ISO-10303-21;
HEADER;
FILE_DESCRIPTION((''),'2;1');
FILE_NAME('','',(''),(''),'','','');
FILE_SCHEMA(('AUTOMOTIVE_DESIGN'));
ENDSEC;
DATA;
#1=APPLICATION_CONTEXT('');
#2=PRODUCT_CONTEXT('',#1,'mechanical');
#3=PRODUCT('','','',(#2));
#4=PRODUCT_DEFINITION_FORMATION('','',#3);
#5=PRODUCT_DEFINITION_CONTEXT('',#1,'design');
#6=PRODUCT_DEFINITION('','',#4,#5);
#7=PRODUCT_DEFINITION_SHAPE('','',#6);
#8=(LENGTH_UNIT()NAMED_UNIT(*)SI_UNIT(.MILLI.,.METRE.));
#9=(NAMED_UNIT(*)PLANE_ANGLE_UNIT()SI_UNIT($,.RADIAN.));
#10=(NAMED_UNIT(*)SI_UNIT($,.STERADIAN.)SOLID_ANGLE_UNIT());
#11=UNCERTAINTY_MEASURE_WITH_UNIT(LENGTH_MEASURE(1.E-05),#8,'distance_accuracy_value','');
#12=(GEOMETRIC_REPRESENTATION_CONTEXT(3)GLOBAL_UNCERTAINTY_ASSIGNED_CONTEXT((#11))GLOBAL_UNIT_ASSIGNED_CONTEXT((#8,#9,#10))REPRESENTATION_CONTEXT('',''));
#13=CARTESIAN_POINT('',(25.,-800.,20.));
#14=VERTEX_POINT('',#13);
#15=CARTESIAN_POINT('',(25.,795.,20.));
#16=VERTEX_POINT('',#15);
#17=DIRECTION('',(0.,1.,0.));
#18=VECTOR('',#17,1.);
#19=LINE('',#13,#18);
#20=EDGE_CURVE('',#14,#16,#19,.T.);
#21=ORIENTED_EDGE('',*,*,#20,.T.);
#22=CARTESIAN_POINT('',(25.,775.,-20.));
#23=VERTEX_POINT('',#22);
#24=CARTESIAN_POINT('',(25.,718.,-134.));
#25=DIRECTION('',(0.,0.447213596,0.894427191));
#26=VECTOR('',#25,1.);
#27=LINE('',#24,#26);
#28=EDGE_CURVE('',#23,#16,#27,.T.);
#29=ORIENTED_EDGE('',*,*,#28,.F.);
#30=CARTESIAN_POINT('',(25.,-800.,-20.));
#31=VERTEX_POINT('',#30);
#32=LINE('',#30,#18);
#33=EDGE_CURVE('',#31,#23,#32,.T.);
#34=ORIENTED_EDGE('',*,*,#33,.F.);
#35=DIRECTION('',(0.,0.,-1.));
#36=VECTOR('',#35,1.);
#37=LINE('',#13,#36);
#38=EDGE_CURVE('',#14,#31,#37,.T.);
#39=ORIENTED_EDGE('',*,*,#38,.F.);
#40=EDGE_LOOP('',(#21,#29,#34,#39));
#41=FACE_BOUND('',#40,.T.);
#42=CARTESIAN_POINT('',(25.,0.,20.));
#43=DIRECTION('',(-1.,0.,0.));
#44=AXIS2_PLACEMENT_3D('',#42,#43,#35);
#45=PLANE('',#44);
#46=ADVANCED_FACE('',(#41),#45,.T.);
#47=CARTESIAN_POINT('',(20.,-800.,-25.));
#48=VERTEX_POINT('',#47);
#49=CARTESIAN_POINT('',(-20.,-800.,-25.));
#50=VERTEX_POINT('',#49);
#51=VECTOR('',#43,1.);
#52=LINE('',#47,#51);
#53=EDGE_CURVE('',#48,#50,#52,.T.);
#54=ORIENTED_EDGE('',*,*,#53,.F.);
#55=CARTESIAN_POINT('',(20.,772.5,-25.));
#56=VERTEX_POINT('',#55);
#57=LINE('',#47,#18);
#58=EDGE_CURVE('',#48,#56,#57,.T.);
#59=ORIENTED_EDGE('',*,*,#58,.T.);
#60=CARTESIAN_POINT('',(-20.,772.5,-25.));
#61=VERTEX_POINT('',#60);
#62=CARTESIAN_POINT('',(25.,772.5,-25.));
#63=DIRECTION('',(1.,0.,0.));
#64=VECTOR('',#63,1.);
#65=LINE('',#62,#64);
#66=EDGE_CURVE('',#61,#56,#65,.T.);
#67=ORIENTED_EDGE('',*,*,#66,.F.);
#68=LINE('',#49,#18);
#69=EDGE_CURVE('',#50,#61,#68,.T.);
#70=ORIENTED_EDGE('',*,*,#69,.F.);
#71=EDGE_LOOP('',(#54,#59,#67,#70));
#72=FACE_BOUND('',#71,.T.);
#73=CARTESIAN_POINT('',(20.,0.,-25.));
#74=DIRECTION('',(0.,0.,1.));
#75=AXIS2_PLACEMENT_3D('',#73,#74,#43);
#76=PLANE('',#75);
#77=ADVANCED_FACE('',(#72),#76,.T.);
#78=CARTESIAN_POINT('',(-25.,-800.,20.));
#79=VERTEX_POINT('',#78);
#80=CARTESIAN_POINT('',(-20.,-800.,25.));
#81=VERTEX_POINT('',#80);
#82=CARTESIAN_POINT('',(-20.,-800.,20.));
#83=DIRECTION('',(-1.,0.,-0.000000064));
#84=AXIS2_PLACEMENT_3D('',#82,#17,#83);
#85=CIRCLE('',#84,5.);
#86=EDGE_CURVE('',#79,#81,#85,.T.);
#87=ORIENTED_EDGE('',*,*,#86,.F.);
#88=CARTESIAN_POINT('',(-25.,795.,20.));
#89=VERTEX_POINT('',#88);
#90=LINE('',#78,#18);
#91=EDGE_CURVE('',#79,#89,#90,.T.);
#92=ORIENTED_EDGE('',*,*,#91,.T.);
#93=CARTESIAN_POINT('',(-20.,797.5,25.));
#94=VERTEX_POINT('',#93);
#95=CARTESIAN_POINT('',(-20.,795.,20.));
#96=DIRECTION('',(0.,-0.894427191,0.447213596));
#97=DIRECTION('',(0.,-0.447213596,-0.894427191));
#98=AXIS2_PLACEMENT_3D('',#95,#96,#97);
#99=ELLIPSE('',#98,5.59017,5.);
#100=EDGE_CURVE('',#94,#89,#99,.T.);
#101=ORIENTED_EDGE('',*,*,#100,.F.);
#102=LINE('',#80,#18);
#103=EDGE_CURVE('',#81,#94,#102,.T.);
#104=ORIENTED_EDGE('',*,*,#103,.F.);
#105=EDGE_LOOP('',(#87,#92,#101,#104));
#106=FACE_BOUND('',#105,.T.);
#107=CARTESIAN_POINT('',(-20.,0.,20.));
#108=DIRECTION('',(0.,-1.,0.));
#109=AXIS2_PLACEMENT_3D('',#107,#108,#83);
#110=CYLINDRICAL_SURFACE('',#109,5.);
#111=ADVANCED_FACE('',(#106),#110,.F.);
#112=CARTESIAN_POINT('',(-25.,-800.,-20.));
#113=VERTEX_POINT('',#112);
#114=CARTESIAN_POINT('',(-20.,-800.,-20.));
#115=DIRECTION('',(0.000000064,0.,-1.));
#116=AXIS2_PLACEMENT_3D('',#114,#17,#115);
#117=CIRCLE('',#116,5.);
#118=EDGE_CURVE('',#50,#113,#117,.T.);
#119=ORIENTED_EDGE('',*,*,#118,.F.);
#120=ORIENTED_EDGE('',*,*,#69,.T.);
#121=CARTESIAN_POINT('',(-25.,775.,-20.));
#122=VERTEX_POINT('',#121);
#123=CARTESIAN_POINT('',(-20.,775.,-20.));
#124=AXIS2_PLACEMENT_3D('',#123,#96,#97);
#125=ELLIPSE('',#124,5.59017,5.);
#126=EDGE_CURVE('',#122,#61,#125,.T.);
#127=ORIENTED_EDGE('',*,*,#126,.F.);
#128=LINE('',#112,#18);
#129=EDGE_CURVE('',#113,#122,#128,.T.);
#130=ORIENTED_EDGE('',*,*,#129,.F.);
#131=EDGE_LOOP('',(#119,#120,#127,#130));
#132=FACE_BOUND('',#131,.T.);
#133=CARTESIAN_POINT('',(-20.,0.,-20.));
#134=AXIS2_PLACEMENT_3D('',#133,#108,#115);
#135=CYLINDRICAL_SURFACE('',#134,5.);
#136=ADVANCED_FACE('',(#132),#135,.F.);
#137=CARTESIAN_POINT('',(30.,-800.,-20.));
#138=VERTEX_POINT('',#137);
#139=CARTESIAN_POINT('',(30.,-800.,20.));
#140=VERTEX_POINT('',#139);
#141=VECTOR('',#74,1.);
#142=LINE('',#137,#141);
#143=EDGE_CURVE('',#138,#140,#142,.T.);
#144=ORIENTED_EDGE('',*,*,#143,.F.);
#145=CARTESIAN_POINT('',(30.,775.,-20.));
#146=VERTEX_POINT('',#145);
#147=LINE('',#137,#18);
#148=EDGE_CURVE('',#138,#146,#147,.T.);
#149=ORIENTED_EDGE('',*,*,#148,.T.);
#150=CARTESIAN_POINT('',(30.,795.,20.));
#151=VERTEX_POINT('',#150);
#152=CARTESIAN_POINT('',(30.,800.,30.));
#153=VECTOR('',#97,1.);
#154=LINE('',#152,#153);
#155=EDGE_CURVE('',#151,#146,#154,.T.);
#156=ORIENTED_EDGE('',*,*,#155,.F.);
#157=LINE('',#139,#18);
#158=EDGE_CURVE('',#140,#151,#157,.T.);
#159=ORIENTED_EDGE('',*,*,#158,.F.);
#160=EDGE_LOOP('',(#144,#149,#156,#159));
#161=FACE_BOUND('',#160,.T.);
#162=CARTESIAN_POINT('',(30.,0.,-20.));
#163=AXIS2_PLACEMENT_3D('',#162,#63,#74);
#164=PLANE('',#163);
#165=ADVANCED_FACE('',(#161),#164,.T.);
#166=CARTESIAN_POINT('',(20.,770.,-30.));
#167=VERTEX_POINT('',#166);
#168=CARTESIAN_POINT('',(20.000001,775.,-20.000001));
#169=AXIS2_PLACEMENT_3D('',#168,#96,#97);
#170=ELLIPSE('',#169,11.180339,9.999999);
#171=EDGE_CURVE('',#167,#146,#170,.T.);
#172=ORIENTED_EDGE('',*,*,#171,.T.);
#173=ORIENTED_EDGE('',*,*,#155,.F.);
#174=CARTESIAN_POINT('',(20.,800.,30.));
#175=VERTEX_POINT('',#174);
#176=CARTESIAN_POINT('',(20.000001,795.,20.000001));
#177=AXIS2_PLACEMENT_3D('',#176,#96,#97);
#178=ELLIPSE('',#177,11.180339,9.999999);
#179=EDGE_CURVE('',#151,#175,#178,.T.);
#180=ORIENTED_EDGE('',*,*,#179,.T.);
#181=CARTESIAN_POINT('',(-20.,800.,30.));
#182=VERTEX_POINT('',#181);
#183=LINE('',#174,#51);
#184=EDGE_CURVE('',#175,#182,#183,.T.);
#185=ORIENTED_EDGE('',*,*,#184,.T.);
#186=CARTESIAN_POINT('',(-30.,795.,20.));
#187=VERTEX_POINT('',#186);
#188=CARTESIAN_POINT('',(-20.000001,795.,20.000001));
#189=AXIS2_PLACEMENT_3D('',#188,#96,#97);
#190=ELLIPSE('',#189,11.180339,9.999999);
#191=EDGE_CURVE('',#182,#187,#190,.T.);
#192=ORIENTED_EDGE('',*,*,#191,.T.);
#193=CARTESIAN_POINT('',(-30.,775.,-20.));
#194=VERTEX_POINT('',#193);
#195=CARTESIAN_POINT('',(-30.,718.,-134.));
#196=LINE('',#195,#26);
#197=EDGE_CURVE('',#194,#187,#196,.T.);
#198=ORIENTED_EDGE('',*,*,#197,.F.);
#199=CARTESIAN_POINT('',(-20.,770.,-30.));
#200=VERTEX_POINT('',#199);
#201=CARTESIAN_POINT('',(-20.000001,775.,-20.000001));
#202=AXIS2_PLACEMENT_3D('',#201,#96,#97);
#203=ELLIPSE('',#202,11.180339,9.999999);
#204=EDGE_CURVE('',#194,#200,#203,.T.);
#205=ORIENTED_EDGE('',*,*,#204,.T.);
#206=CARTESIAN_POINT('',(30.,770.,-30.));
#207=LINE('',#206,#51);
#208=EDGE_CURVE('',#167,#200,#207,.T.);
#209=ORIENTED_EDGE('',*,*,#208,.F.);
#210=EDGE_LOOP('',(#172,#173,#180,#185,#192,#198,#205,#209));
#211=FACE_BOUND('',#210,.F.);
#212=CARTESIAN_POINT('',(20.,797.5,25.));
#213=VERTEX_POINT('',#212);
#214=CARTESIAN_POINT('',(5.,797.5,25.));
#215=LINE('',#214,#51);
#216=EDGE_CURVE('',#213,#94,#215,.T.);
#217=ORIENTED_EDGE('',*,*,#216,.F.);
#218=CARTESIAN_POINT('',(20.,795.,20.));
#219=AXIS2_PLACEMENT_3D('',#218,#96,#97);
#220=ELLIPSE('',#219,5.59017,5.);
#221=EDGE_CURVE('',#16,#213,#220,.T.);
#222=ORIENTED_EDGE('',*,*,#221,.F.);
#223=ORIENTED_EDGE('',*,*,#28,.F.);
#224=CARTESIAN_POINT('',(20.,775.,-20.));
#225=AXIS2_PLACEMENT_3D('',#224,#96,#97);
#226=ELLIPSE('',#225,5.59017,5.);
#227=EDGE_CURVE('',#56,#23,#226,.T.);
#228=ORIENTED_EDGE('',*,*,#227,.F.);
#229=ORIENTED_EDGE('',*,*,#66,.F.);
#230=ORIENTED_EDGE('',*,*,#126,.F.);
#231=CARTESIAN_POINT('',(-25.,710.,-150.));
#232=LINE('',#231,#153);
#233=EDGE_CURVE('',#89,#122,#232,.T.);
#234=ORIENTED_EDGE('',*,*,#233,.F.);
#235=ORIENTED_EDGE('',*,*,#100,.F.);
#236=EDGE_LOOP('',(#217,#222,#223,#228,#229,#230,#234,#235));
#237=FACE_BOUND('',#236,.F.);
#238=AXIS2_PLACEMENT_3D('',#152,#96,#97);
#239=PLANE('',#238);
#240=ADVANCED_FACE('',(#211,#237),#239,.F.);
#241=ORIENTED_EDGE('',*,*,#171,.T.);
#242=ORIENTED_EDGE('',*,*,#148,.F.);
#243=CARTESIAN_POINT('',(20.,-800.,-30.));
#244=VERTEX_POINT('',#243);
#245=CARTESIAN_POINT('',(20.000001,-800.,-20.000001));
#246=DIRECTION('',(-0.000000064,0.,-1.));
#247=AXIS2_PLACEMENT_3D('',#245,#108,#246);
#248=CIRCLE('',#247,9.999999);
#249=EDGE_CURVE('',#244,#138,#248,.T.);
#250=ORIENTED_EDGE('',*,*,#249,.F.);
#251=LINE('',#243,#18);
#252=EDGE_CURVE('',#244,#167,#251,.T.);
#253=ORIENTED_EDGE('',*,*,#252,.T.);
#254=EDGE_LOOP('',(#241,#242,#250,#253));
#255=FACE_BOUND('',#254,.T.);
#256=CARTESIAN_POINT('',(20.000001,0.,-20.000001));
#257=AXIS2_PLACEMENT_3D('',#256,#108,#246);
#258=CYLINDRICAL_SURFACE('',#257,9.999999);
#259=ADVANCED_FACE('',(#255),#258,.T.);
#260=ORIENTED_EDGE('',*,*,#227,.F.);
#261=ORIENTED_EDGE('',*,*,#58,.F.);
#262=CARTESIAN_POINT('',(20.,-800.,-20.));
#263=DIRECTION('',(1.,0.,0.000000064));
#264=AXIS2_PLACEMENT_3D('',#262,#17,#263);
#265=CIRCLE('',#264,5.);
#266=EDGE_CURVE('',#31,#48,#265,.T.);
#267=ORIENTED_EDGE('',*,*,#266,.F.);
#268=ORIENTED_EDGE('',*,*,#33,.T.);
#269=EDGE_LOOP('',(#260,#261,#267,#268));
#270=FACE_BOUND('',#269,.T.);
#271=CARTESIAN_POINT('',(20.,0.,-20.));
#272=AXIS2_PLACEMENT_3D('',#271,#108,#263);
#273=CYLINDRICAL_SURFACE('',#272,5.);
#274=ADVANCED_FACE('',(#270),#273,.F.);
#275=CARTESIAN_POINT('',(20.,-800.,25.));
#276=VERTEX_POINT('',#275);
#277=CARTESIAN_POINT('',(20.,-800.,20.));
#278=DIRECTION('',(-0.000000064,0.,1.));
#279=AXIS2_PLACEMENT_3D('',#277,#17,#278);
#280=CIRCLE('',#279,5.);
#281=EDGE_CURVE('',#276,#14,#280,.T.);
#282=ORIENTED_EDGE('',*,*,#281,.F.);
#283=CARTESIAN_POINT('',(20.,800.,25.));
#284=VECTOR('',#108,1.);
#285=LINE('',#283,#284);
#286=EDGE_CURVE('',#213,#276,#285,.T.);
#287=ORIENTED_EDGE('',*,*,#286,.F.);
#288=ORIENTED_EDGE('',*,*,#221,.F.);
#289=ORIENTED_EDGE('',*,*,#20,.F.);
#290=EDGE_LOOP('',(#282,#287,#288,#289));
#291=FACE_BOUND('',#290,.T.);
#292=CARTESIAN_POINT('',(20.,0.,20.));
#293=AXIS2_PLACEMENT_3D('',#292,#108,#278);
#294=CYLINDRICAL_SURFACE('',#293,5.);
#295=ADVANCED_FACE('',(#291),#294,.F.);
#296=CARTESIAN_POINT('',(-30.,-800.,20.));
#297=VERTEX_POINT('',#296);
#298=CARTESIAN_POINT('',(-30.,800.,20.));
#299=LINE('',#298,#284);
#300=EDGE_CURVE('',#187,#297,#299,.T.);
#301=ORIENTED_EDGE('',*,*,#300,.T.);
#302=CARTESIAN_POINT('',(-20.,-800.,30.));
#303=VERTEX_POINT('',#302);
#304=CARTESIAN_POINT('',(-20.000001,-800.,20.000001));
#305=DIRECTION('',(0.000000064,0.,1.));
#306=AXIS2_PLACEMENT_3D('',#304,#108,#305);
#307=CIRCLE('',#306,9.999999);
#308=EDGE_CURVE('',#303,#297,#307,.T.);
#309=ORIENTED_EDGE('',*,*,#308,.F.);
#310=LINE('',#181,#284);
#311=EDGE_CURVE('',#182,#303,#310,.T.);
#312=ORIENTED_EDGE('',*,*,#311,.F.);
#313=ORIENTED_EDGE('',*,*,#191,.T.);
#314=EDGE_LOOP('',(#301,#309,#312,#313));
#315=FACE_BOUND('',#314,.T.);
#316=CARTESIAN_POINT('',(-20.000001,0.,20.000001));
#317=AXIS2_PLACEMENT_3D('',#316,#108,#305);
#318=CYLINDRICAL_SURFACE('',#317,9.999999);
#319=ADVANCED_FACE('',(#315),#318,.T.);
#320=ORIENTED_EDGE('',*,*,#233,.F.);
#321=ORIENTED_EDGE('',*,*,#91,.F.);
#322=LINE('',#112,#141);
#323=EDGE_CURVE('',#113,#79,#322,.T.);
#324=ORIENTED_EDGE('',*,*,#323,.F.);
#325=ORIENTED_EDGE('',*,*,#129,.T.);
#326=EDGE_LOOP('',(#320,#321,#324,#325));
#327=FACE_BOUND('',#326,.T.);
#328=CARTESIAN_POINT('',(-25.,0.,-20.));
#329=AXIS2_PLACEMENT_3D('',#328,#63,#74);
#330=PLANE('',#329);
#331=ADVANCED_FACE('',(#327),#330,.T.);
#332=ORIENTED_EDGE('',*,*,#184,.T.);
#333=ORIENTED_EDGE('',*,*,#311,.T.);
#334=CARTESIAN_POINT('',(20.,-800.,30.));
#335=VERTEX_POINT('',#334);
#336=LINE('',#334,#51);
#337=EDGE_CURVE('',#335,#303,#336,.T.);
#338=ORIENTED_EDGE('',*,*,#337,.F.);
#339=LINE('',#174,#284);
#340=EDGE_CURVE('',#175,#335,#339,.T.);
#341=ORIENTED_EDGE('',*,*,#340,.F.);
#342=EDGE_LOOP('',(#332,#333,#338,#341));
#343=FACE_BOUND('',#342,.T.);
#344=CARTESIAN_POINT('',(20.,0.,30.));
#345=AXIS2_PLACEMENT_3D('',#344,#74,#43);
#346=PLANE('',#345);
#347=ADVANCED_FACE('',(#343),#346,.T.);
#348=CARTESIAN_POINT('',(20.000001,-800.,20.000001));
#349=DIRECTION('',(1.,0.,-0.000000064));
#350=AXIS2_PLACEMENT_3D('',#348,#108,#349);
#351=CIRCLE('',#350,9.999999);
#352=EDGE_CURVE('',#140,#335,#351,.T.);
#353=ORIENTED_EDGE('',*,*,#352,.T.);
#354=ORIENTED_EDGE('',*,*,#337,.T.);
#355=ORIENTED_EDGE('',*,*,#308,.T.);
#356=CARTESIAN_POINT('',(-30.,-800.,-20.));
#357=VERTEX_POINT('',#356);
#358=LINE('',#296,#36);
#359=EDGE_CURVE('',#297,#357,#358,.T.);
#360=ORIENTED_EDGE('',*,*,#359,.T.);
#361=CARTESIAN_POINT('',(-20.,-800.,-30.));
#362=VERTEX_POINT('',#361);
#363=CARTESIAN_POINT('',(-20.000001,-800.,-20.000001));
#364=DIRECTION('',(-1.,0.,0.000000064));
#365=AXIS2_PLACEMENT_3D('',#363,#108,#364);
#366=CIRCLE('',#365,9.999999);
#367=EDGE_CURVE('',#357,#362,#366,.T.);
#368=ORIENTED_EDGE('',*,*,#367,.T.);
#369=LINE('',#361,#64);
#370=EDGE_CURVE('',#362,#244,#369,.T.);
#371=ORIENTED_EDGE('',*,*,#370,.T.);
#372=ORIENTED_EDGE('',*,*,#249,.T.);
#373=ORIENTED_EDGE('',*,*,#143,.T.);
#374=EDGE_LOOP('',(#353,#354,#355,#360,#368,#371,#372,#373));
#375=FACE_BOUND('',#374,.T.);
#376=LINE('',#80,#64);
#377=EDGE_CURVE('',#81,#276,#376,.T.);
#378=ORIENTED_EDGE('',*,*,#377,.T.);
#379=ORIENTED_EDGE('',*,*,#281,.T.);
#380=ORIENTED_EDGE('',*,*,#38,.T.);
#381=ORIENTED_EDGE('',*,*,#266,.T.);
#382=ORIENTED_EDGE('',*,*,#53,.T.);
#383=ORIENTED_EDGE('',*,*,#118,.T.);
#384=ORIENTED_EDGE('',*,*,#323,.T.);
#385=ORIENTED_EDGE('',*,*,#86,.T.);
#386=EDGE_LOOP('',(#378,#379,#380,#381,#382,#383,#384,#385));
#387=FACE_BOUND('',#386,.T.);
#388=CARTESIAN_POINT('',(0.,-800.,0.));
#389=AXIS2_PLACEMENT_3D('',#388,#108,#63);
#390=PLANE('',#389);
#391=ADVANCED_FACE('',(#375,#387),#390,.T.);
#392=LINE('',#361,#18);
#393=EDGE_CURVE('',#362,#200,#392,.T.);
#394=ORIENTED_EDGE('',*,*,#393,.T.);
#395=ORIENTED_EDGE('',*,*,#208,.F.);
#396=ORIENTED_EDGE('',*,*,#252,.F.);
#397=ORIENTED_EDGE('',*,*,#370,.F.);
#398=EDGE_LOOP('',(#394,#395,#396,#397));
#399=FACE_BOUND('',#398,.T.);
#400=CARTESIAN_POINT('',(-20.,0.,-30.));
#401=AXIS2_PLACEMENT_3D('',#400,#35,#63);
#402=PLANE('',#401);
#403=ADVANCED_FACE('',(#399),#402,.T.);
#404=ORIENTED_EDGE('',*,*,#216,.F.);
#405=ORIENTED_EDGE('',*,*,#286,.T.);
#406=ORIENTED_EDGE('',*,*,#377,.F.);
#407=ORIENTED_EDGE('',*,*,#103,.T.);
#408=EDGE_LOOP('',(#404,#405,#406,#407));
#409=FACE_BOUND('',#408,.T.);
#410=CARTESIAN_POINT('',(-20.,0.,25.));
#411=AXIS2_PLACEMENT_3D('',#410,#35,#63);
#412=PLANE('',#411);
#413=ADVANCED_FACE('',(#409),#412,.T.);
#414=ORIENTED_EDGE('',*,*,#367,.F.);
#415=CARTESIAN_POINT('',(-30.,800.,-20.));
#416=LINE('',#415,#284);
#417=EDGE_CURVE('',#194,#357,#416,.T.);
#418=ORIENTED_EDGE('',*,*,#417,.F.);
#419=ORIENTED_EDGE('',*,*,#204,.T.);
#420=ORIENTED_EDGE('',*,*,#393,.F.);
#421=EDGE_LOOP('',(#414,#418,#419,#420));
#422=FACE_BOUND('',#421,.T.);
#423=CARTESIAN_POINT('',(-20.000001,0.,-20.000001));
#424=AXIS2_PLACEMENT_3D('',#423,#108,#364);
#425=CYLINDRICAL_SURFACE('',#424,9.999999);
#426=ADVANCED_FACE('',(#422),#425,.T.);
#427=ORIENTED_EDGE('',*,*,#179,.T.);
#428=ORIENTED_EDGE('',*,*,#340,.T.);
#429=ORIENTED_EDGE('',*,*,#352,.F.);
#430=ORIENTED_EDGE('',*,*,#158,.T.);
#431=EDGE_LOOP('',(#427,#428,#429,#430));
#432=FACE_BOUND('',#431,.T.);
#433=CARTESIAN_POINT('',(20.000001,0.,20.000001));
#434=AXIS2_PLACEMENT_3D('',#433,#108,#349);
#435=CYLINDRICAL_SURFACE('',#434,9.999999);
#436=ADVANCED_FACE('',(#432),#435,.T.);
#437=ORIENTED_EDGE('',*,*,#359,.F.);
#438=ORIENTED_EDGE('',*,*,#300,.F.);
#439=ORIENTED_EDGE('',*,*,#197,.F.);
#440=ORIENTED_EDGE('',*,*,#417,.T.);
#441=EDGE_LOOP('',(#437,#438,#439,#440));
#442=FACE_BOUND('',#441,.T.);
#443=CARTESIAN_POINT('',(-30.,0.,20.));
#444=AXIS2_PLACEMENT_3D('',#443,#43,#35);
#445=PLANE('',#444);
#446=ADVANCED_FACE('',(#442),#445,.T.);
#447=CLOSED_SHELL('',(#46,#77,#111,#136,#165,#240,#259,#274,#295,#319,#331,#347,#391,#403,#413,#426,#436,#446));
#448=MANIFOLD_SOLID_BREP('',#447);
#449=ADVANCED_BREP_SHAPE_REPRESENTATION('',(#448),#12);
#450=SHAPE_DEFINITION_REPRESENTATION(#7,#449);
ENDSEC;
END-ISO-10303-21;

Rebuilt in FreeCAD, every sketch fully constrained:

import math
import FreeCAD as App
import Part
import Sketcher

V = App.Vector
Q = App.Units.Quantity

doc = App.newDocument("Part")
body = doc.addObject("PartDesign::Body", "Body")

# Sketch on XZ plane
sketch1 = body.newObject("Sketcher::SketchObject", "Sketch")
sketch1.AttachmentSupport = (doc.getObject("XZ_Plane"), [""])
sketch1.MapMode = "FlatFace"
sketch1.addGeometry([
    Part.ArcOfCircle(Part.Circle(V(20, 20, 0), V(0, 0, 1), 10), math.radians(0), math.radians(90)),  # 0
    Part.LineSegment(V(20, 30, 0), V(-20, 30, 0)),  # 1
    Part.ArcOfCircle(Part.Circle(V(-20, 20, 0), V(0, 0, 1), 10), math.radians(90), math.radians(180)),  # 2
    Part.LineSegment(V(-30, 20, 0), V(-30, -20, 0)),  # 3
    Part.ArcOfCircle(Part.Circle(V(-20, -20, 0), V(0, 0, 1), 10), math.radians(180), math.radians(270)),  # 4
    Part.LineSegment(V(-20, -30, 0), V(20, -30, 0)),  # 5
    Part.ArcOfCircle(Part.Circle(V(20, -20, 0), V(0, 0, 1), 10), math.radians(-90), math.radians(0)),  # 6
    Part.LineSegment(V(30, -20, 0), V(30, 20, 0)),  # 7
    Part.LineSegment(V(-20, 25, 0), V(20, 25, 0)),  # 8
    Part.ArcOfCircle(Part.Circle(V(20, 20, 0), V(0, 0, 1), 5), math.radians(0), math.radians(90)),  # 9
    Part.LineSegment(V(25, 20, 0), V(25, -20, 0)),  # 10
    Part.ArcOfCircle(Part.Circle(V(20, -20, 0), V(0, 0, 1), 5), math.radians(-90), math.radians(0)),  # 11
    Part.LineSegment(V(20, -25, 0), V(-20, -25, 0)),  # 12
    Part.ArcOfCircle(Part.Circle(V(-20, -20, 0), V(0, 0, 1), 5), math.radians(180), math.radians(270)),  # 13
    Part.LineSegment(V(-25, -20, 0), V(-25, 20, 0)),  # 14
    Part.ArcOfCircle(Part.Circle(V(-20, 20, 0), V(0, 0, 1), 5), math.radians(90), math.radians(180)),  # 15
], False)
sketch1.addConstraint([
    Sketcher.Constraint("Tangent", 0, 2, 1, 1),
    Sketcher.Constraint("Tangent", 1, 2, 2, 1),
    Sketcher.Constraint("Tangent", 2, 2, 3, 1),
    Sketcher.Constraint("Tangent", 3, 2, 4, 1),
    Sketcher.Constraint("Tangent", 4, 2, 5, 1),
    Sketcher.Constraint("Tangent", 5, 2, 6, 1),
    Sketcher.Constraint("Tangent", 6, 2, 7, 1),
    Sketcher.Constraint("Tangent", 7, 2, 0, 1),
    Sketcher.Constraint("Tangent", 8, 2, 9, 2),
    Sketcher.Constraint("Tangent", 9, 1, 10, 1),
    Sketcher.Constraint("Tangent", 10, 2, 11, 2),
    Sketcher.Constraint("Tangent", 11, 1, 12, 1),
    Sketcher.Constraint("Tangent", 12, 2, 13, 2),
    Sketcher.Constraint("Tangent", 13, 1, 14, 1),
    Sketcher.Constraint("Tangent", 14, 2, 15, 2),
    Sketcher.Constraint("Tangent", 15, 1, 8, 1),
    Sketcher.Constraint("Horizontal", 1),
    Sketcher.Constraint("Vertical", 3),
    Sketcher.Constraint("Horizontal", 5),
    Sketcher.Constraint("Vertical", 7),
    Sketcher.Constraint("Horizontal", 8),
    Sketcher.Constraint("Vertical", 10),
    Sketcher.Constraint("Horizontal", 12),
    Sketcher.Constraint("Vertical", 14),
    Sketcher.Constraint("Coincident", 9, 3, 0, 3),
    Sketcher.Constraint("Coincident", 11, 3, 6, 3),
    Sketcher.Constraint("Coincident", 13, 3, 4, 3),
    Sketcher.Constraint("Equal", 0, 2),
    Sketcher.Constraint("Equal", 2, 4),
    Sketcher.Constraint("Equal", 4, 6),
    Sketcher.Constraint("Equal", 13, 15),
    Sketcher.Constraint("Symmetric", 0, 3, 4, 3, -1, 1),
    Sketcher.Constraint("Equal", 12, 3),
    Sketcher.Constraint("Radius", 0, Q("9.999999 mm")),
    Sketcher.Constraint("Radius", 9, Q("5 mm")),
    Sketcher.Constraint("DistanceX", 1, 2, 1, 1, Q("40 mm")),
])
pad1 = body.newObject("PartDesign::Pad", "Pad")
pad1.Profile = sketch1
pad1.Length = 1600
pad1.Midplane = True

# Sketch on YZ plane
sketch2 = body.newObject("Sketcher::SketchObject", "Sketch001")
sketch2.AttachmentSupport = (doc.getObject("YZ_Plane"), [""])
sketch2.MapMode = "FlatFace"
sketch2.AttachmentOffset = App.Placement(V(0, 0, 30), App.Rotation())
sketch2.addGeometry([
    Part.LineSegment(V(800, -30, 0), V(800, 30, 0)),
    Part.LineSegment(V(800, 30, 0), V(770, -30, 0)),
    Part.LineSegment(V(770, -30, 0), V(800, -30, 0)),
], False)
sketch2.addConstraint([
    Sketcher.Constraint("Coincident", 0, 2, 1, 1),
    Sketcher.Constraint("Coincident", 1, 2, 2, 1),
    Sketcher.Constraint("Coincident", 2, 2, 0, 1),
    Sketcher.Constraint("Vertical", 0),
    Sketcher.Constraint("Horizontal", 2),
    Sketcher.Constraint("DistanceX", 2, 1, 2, 2, Q("30 mm")),
    Sketcher.Constraint("DistanceY", 0, 1, 0, 2, Q("60 mm")),
    Sketcher.Constraint("DistanceX", -1, 1, 0, 2, Q("800 mm")),
    Sketcher.Constraint("DistanceY", -1, 1, 0, 2, Q("30 mm")),
])
pocket1 = body.newObject("PartDesign::Pocket", "Pocket")
pocket1.Profile = sketch2
pocket1.Type = "ThroughAll"

doc.recompute()
